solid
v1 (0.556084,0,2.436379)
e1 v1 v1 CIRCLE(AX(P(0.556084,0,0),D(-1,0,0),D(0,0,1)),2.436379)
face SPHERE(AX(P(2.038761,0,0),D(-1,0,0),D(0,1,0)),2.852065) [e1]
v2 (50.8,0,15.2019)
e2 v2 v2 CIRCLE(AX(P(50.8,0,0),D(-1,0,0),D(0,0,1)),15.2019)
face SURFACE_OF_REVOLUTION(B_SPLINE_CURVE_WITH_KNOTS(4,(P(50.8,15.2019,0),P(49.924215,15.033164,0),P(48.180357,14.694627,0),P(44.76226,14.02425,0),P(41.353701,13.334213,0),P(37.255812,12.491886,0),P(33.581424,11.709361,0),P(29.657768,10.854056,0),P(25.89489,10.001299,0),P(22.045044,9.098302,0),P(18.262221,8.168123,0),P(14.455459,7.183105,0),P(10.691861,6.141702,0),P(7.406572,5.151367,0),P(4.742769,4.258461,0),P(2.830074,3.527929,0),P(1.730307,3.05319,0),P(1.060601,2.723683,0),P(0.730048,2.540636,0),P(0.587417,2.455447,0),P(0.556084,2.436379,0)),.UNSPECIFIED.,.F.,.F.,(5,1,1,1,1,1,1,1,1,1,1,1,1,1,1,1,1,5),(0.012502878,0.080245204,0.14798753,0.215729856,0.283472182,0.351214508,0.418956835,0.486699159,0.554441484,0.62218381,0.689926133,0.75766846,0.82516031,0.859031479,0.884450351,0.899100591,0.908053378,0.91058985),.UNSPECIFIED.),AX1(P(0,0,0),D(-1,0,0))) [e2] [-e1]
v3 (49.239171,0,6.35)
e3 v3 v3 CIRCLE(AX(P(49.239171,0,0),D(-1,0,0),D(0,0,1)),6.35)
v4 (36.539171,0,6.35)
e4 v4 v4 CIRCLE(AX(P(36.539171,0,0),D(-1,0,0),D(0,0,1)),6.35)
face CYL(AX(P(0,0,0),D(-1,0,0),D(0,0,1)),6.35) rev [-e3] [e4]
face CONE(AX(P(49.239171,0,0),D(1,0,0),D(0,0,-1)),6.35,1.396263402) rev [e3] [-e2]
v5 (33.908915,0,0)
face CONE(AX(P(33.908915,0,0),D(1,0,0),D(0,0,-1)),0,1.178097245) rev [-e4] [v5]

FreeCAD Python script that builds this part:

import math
import FreeCAD as App
import Part
import Sketcher

V = App.Vector
Q = App.Units.Quantity

doc = App.newDocument("Part")
body = doc.addObject("PartDesign::Body", "Body")

# Sketch on XY plane
sketch1 = body.newObject("Sketcher::SketchObject", "Sketch")
sketch1.AttachmentSupport = (doc.getObject("XY_Plane"), [""])
sketch1.MapMode = "FlatFace"
sketch1.addGeometry([
    Part.LineSegment(V(-0.813304, 0, 0), V(33.908915, 0, 0)),  # 0
    Part.LineSegment(V(33.908915, 0, 0), V(36.539171, 6.35, 0)),  # 1
    Part.LineSegment(V(36.539171, 6.35, 0), V(49.239171, 6.35, 0)),  # 2
    Part.LineSegment(V(49.239171, 6.35, 0), V(50.8, 15.2019, 0)),  # 3
    Part.BSplineCurve([V(0.556084, 2.436379, 0), V(0.587417, 2.455447, 0), V(0.730048, 2.540636, 0), V(1.060601, 2.723683, 0), V(1.730307, 3.05319, 0), V(2.830074, 3.527929, 0), V(4.742769, 4.258461, 0), V(7.406572, 5.151367, 0), V(10.691861, 6.141702, 0), V(14.455459, 7.183105, 0), V(18.262221, 8.168123, 0), V(22.045044, 9.098302, 0), V(25.89489, 10.001299, 0), V(29.657768, 10.854056, 0), V(33.581424, 11.709361, 0), V(37.255812, 12.491886, 0), V(41.353701, 13.334213, 0), V(44.76226, 14.02425, 0), V(48.180357, 14.694627, 0), V(49.924215, 15.033164, 0), V(50.8, 15.2019, 0)], [5, 1, 1, 1, 1, 1, 1, 1, 1, 1, 1, 1, 1, 1, 1, 1, 1, 5], [0.012502878, 0.015039351, 0.023992138, 0.038642378, 0.064061249, 0.097932419, 0.165424269, 0.233166596, 0.300908919, 0.368651244, 0.436393569, 0.504135894, 0.571878221, 0.639620547, 0.707362872, 0.775105198, 0.842847524, 0.91058985], False, 4, [1, 1, 1, 1, 1, 1, 1, 1, 1, 1, 1, 1, 1, 1, 1, 1, 1, 1, 1, 1, 1], False),  # 4
    Part.ArcOfCircle(Part.Circle(V(2.038761, 0, 0), V(0, 0, 1), 2.852065), math.radians(121.322926), math.radians(180)),  # 5
], False)
sketch1.addConstraint([
    Sketcher.Constraint("Block", 4),
    Sketcher.Constraint("Coincident", 0, 2, 1, 1),
    Sketcher.Constraint("Coincident", 1, 2, 2, 1),
    Sketcher.Constraint("Coincident", 2, 2, 3, 1),
    Sketcher.Constraint("Coincident", 3, 2, 4, 2),
    Sketcher.Constraint("Coincident", 4, 1, 5, 1),
    Sketcher.Constraint("Coincident", 5, 2, 0, 1),
    Sketcher.Constraint("Horizontal", 0),
    Sketcher.Constraint("Horizontal", 2),
    Sketcher.Constraint("PointOnObject", 5, 3, -1),
    Sketcher.Constraint("PointOnObject", 0, 2, -1),
    Sketcher.Constraint("DistanceX", 2, 1, 2, 2, Q("0.5 in")),
    Sketcher.Constraint("DistanceY", -1, 1, 1, 2, Q("0.25 in")),
    Sketcher.Constraint("Radius", 5, 2.852065),
    Sketcher.Constraint("DistanceX", 0, 1, 0, 2, 34.722219),
    Sketcher.Constraint("Distance", 1, 6.87319),
])
revolution = body.newObject("PartDesign::Revolution", "Revolution")
revolution.Profile = sketch1
revolution.ReferenceAxis = (sketch1, ["H_Axis"])
revolution.Angle = 360

doc.recompute()
